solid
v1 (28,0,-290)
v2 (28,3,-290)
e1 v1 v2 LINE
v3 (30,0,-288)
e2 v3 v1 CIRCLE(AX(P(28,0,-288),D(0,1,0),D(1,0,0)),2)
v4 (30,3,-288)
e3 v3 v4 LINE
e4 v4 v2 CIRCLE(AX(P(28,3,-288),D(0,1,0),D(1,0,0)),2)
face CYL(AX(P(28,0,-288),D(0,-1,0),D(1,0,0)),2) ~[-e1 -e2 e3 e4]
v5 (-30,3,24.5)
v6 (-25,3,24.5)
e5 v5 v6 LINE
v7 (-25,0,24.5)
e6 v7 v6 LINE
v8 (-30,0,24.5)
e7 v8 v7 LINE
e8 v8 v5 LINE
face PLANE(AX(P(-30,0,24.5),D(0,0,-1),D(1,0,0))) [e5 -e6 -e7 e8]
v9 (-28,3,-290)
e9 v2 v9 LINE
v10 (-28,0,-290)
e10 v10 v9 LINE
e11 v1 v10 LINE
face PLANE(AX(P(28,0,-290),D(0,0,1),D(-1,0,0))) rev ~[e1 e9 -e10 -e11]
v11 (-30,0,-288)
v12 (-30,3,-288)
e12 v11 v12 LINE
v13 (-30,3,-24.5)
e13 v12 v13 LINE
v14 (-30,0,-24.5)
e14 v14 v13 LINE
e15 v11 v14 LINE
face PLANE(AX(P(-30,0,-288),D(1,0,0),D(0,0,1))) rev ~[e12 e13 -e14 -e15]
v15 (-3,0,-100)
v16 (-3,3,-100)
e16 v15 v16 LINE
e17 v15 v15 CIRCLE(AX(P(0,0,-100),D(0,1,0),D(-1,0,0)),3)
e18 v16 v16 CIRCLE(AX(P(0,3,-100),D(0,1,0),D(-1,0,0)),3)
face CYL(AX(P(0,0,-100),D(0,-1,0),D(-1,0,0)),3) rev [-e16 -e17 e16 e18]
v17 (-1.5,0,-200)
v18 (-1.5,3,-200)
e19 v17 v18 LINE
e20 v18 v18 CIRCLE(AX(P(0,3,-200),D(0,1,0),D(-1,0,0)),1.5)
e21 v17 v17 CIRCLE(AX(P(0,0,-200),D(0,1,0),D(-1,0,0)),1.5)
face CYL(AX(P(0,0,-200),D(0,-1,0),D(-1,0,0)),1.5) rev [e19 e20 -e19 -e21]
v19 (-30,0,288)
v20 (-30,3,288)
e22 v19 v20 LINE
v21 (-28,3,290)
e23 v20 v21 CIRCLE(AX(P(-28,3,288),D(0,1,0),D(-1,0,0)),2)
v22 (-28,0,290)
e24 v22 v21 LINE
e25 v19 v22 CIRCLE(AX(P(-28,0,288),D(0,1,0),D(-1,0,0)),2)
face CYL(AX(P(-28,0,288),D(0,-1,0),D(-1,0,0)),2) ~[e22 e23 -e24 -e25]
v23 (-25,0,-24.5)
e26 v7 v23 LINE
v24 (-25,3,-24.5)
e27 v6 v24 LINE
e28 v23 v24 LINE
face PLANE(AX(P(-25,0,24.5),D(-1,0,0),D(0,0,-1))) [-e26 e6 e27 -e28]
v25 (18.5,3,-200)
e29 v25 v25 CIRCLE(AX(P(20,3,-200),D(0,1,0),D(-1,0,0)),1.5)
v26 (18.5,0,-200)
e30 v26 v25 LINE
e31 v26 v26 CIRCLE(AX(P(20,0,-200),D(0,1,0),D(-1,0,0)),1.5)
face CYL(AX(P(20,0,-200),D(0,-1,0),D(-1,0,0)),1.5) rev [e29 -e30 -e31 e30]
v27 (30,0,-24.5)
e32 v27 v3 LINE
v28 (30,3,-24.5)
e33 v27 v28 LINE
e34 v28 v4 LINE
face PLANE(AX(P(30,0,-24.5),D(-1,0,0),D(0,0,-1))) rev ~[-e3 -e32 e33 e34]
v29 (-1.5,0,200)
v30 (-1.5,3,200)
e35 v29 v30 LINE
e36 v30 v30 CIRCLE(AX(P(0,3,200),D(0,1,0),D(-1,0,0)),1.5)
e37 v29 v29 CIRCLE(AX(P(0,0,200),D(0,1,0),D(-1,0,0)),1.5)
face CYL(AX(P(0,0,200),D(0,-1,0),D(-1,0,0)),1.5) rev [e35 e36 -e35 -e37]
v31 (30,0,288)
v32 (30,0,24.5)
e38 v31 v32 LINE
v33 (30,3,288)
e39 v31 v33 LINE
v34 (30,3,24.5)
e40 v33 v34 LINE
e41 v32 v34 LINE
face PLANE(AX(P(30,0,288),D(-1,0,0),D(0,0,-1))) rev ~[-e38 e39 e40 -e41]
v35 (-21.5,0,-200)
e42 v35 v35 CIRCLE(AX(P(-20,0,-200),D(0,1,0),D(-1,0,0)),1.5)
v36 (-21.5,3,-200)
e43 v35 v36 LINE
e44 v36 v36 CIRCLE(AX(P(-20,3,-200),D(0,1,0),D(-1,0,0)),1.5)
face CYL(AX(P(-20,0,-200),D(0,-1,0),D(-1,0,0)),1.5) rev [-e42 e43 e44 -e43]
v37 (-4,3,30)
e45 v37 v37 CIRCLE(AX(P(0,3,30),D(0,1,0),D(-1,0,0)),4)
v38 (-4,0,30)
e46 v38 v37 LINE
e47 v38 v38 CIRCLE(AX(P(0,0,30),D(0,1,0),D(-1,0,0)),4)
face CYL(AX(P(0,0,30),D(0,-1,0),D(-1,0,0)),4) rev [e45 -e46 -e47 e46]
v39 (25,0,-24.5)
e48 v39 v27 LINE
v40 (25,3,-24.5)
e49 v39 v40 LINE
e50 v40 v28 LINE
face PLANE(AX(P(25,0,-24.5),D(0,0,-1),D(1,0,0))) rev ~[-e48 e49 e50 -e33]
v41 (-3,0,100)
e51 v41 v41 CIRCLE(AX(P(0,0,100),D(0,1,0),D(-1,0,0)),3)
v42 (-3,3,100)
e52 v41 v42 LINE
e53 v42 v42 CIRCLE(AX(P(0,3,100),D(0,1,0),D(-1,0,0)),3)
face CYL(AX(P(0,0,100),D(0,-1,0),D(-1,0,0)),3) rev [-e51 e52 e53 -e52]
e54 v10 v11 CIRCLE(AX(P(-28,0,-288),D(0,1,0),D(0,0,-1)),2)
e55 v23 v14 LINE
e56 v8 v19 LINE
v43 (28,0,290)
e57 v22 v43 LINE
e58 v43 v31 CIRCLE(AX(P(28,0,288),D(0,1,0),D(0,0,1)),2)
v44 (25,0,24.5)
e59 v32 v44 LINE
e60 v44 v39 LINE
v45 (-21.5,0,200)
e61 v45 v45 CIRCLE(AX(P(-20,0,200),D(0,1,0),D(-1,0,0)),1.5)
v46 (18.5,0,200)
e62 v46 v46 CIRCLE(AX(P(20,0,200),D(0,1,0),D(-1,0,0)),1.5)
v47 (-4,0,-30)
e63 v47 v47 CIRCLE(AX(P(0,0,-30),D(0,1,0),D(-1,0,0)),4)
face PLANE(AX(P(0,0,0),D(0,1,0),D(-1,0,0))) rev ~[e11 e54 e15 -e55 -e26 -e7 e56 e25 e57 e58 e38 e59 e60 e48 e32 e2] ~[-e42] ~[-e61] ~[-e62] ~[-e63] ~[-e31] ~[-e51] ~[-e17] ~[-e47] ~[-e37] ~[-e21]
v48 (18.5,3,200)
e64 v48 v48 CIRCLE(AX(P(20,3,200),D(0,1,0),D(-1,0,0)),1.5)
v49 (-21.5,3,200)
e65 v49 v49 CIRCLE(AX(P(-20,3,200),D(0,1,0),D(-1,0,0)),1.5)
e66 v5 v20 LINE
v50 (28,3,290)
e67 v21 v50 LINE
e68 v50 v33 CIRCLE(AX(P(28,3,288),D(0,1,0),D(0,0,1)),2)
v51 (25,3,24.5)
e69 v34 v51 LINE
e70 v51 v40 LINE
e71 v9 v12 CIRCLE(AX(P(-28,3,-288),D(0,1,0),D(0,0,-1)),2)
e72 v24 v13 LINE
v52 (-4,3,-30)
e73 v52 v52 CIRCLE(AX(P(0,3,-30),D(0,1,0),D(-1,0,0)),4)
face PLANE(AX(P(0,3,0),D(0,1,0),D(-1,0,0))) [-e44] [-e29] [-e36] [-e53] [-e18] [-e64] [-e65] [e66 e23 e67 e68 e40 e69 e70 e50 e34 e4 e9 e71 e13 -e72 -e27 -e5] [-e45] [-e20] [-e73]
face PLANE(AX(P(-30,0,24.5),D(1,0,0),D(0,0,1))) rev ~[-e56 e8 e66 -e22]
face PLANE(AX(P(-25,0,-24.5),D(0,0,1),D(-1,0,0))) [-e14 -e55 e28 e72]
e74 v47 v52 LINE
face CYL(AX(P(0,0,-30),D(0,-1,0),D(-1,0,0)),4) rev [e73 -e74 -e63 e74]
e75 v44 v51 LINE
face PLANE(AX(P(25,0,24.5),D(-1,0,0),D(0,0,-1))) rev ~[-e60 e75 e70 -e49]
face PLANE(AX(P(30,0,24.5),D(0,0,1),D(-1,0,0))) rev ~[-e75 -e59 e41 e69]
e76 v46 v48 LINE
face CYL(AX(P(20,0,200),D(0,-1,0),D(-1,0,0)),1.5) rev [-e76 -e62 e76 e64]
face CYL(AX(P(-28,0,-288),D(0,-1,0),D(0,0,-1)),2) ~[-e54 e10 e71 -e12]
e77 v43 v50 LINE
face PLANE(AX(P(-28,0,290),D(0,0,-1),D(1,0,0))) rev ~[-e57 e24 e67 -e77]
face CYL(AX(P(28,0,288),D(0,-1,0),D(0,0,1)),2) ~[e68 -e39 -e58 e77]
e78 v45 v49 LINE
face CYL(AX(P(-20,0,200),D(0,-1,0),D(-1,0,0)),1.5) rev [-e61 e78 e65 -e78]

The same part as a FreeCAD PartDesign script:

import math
import FreeCAD as App
import Part
import Sketcher

V = App.Vector
Q = App.Units.Quantity

doc = App.newDocument("Part")
body = doc.addObject("PartDesign::Body", "Body")

# Sketch on XZ plane
sketch1 = body.newObject("Sketcher::SketchObject", "Sketch")
sketch1.AttachmentSupport = (doc.getObject("XZ_Plane"), [""])
sketch1.MapMode = "FlatFace"
sketch1.addGeometry(Part.ArcOfCircle(Part.Circle(V(28, -288, 0), V(0, 0, 1), 2), math.radians(-90), math.radians(0)), False)
sketch1.addGeometry(Part.LineSegment(V(28, -290, 0), V(-28, -290, 0)), False)
sketch1.addGeometry(Part.ArcOfCircle(Part.Circle(V(-28, -288, 0), V(0, 0, 1), 2), math.radians(180), math.radians(270)), False)
sketch1.addGeometry(Part.LineSegment(V(-30, -288, 0), V(-30, -24.5, 0)), False)
sketch1.addGeometry(Part.LineSegment(V(-30, -24.5, 0), V(-25, -24.5, 0)), False)
sketch1.addGeometry(Part.LineSegment(V(-25, -24.5, 0), V(-25, 24.5, 0)), False)
sketch1.addGeometry(Part.LineSegment(V(-25, 24.5, 0), V(-30, 24.5, 0)), False)
sketch1.addGeometry(Part.LineSegment(V(-30, 24.5, 0), V(-30, 288, 0)), False)
sketch1.addGeometry(Part.ArcOfCircle(Part.Circle(V(-28, 288, 0), V(0, 0, 1), 2), math.radians(90), math.radians(180)), False)
sketch1.addGeometry(Part.LineSegment(V(-28, 290, 0), V(28, 290, 0)), False)
sketch1.addGeometry(Part.ArcOfCircle(Part.Circle(V(28, 288, 0), V(0, 0, 1), 2), math.radians(0), math.radians(90)), False)
sketch1.addGeometry(Part.LineSegment(V(30, 288, 0), V(30, 24.5, 0)), False)
sketch1.addGeometry(Part.LineSegment(V(30, 24.5, 0), V(25, 24.5, 0)), False)
sketch1.addGeometry(Part.LineSegment(V(25, 24.5, 0), V(25, -24.5, 0)), False)
sketch1.addGeometry(Part.LineSegment(V(25, -24.5, 0), V(30, -24.5, 0)), False)
sketch1.addGeometry(Part.LineSegment(V(30, -24.5, 0), V(30, -288, 0)), False)
sketch1.addGeometry(Part.Circle(V(20, -200, 0), V(0, 0, 1), 1.5), False)
sketch1.addGeometry(Part.Circle(V(0, -200, 0), V(0, 0, 1), 1.5), False)
sketch1.addGeometry(Part.Circle(V(-20, -200, 0), V(0, 0, 1), 1.5), False)
sketch1.addGeometry(Part.Circle(V(0, -100, 0), V(0, 0, 1), 3), False)
sketch1.addGeometry(Part.Circle(V(0, -30, 0), V(0, 0, 1), 4), False)
sketch1.addGeometry(Part.Circle(V(20, 200, 0), V(0, 0, 1), 1.5), False)
sketch1.addGeometry(Part.Circle(V(0, 30, 0), V(0, 0, 1), 4), False)
sketch1.addGeometry(Part.Circle(V(0, 100, 0), V(0, 0, 1), 3), False)
sketch1.addGeometry(Part.Circle(V(0, 200, 0), V(0, 0, 1), 1.5), False)
sketch1.addGeometry(Part.Circle(V(-20, 200, 0), V(0, 0, 1), 1.5), False)
sketch1.addConstraint(Sketcher.Constraint("Tangent", 0, 1, 1, 1))
sketch1.addConstraint(Sketcher.Constraint("Tangent", 1, 2, 2, 2))
sketch1.addConstraint(Sketcher.Constraint("Tangent", 2, 1, 3, 1))
sketch1.addConstraint(Sketcher.Constraint("Coincident", 3, 2, 4, 1))
sketch1.addConstraint(Sketcher.Constraint("Coincident", 4, 2, 5, 1))
sketch1.addConstraint(Sketcher.Constraint("Coincident", 5, 2, 6, 1))
sketch1.addConstraint(Sketcher.Constraint("Coincident", 6, 2, 7, 1))
sketch1.addConstraint(Sketcher.Constraint("Tangent", 7, 2, 8, 2))
sketch1.addConstraint(Sketcher.Constraint("Tangent", 8, 1, 9, 1))
sketch1.addConstraint(Sketcher.Constraint("Tangent", 9, 2, 10, 2))
sketch1.addConstraint(Sketcher.Constraint("Tangent", 10, 1, 11, 1))
sketch1.addConstraint(Sketcher.Constraint("Coincident", 11, 2, 12, 1))
sketch1.addConstraint(Sketcher.Constraint("Coincident", 12, 2, 13, 1))
sketch1.addConstraint(Sketcher.Constraint("Coincident", 13, 2, 14, 1))
sketch1.addConstraint(Sketcher.Constraint("Coincident", 14, 2, 15, 1))
sketch1.addConstraint(Sketcher.Constraint("Tangent", 15, 2, 0, 2))
sketch1.addConstraint(Sketcher.Constraint("Horizontal", 1))
sketch1.addConstraint(Sketcher.Constraint("Vertical", 3))
sketch1.addConstraint(Sketcher.Constraint("Horizontal", 4))
sketch1.addConstraint(Sketcher.Constraint("Vertical", 5))
sketch1.addConstraint(Sketcher.Constraint("Horizontal", 6))
sketch1.addConstraint(Sketcher.Constraint("Vertical", 7))
sketch1.addConstraint(Sketcher.Constraint("Horizontal", 9))
sketch1.addConstraint(Sketcher.Constraint("Vertical", 11))
sketch1.addConstraint(Sketcher.Constraint("Horizontal", 12))
sketch1.addConstraint(Sketcher.Constraint("Vertical", 13))
sketch1.addConstraint(Sketcher.Constraint("Horizontal", 14))
sketch1.addConstraint(Sketcher.Constraint("Vertical", 15))
sketch1.addConstraint(Sketcher.Constraint("Equal", 0, 2))
sketch1.addConstraint(Sketcher.Constraint("Equal", 2, 8))
sketch1.addConstraint(Sketcher.Constraint("Equal", 8, 10))
sketch1.addConstraint(Sketcher.Constraint("Equal", 16, 17))
sketch1.addConstraint(Sketcher.Constraint("Equal", 17, 18))
sketch1.addConstraint(Sketcher.Constraint("Equal", 18, 21))
sketch1.addConstraint(Sketcher.Constraint("Equal", 20, 22))
sketch1.addConstraint(Sketcher.Constraint("Equal", 19, 23))
sketch1.addConstraint(Sketcher.Constraint("Equal", 21, 24))
sketch1.addConstraint(Sketcher.Constraint("Equal", 24, 25))
sketch1.addConstraint(Sketcher.Constraint("Symmetric", 0, 3, 8, 3, -1, 1))
sketch1.addConstraint(Sketcher.Constraint("Symmetric", 18, 3, 21, 3, -1, 1))
sketch1.addConstraint(Sketcher.Constraint("Symmetric", 20, 3, 22, 3, -1, 1))
sketch1.addConstraint(Sketcher.Constraint("Symmetric", 19, 3, 23, 3, -1, 1))
sketch1.addConstraint(Sketcher.Constraint("Symmetric", 17, 3, 24, 3, -1, 1))
sketch1.addConstraint(Sketcher.Constraint("Symmetric", 16, 3, 25, 3, -1, 1))
sketch1.addConstraint(Sketcher.Constraint("Symmetric", 3, 2, 11, 2, -1, 1))
sketch1.addConstraint(Sketcher.Constraint("Symmetric", 5, 2, 13, 2, -1, 1))
sketch1.addConstraint(Sketcher.Constraint("Symmetric", 16, 3, 18, 3, -2))
sketch1.addConstraint(Sketcher.Constraint("Symmetric", 6, 2, 11, 2, -2))
sketch1.addConstraint(Sketcher.Constraint("PointOnObject", 17, 3, -2))
sketch1.addConstraint(Sketcher.Constraint("PointOnObject", 19, 3, -2))
sketch1.addConstraint(Sketcher.Constraint("PointOnObject", 20, 3, -2))
sketch1.addConstraint(Sketcher.Constraint("Horizontal", 16, 3, 17, 3))
sketch1.addConstraint(Sketcher.Constraint("Diameter", 16, Q("3 mm")))
sketch1.addConstraint(Sketcher.Constraint("Diameter", 19, Q("6 mm")))
sketch1.addConstraint(Sketcher.Constraint("Diameter", 20, Q("8 mm")))
sketch1.addConstraint(Sketcher.Constraint("Radius", 0, Q("2 mm")))
sketch1.addConstraint(Sketcher.Constraint("DistanceY", 16, 3, -1, 1, Q("200 mm")))
sketch1.addConstraint(Sketcher.Constraint("DistanceX", 16, 3, 0, 3, Q("8 mm")))
sketch1.addConstraint(Sketcher.Constraint("DistanceY", 20, 3, 22, 3, Q("60 mm")))
sketch1.addConstraint(Sketcher.Constraint("DistanceX", 7, 2, 10, 1, Q("60 mm")))
sketch1.addConstraint(Sketcher.Constraint("DistanceX", 4, 1, 4, 2, Q("5 mm")))
sketch1.addConstraint(Sketcher.Constraint("DistanceY", 5, 1, 5, 2, Q("49 mm")))
sketch1.addConstraint(Sketcher.Constraint("DistanceY", 3, 1, 3, 2, Q("263.5 mm")))
sketch1.addConstraint(Sketcher.Constraint("DistanceY", 19, 3, -1, 1, Q("100 mm")))
pad1 = body.newObject("PartDesign::Pad", "Pad")
pad1.Profile = sketch1
pad1.Length = 3
pad1.Reversed = True

doc.recompute()
